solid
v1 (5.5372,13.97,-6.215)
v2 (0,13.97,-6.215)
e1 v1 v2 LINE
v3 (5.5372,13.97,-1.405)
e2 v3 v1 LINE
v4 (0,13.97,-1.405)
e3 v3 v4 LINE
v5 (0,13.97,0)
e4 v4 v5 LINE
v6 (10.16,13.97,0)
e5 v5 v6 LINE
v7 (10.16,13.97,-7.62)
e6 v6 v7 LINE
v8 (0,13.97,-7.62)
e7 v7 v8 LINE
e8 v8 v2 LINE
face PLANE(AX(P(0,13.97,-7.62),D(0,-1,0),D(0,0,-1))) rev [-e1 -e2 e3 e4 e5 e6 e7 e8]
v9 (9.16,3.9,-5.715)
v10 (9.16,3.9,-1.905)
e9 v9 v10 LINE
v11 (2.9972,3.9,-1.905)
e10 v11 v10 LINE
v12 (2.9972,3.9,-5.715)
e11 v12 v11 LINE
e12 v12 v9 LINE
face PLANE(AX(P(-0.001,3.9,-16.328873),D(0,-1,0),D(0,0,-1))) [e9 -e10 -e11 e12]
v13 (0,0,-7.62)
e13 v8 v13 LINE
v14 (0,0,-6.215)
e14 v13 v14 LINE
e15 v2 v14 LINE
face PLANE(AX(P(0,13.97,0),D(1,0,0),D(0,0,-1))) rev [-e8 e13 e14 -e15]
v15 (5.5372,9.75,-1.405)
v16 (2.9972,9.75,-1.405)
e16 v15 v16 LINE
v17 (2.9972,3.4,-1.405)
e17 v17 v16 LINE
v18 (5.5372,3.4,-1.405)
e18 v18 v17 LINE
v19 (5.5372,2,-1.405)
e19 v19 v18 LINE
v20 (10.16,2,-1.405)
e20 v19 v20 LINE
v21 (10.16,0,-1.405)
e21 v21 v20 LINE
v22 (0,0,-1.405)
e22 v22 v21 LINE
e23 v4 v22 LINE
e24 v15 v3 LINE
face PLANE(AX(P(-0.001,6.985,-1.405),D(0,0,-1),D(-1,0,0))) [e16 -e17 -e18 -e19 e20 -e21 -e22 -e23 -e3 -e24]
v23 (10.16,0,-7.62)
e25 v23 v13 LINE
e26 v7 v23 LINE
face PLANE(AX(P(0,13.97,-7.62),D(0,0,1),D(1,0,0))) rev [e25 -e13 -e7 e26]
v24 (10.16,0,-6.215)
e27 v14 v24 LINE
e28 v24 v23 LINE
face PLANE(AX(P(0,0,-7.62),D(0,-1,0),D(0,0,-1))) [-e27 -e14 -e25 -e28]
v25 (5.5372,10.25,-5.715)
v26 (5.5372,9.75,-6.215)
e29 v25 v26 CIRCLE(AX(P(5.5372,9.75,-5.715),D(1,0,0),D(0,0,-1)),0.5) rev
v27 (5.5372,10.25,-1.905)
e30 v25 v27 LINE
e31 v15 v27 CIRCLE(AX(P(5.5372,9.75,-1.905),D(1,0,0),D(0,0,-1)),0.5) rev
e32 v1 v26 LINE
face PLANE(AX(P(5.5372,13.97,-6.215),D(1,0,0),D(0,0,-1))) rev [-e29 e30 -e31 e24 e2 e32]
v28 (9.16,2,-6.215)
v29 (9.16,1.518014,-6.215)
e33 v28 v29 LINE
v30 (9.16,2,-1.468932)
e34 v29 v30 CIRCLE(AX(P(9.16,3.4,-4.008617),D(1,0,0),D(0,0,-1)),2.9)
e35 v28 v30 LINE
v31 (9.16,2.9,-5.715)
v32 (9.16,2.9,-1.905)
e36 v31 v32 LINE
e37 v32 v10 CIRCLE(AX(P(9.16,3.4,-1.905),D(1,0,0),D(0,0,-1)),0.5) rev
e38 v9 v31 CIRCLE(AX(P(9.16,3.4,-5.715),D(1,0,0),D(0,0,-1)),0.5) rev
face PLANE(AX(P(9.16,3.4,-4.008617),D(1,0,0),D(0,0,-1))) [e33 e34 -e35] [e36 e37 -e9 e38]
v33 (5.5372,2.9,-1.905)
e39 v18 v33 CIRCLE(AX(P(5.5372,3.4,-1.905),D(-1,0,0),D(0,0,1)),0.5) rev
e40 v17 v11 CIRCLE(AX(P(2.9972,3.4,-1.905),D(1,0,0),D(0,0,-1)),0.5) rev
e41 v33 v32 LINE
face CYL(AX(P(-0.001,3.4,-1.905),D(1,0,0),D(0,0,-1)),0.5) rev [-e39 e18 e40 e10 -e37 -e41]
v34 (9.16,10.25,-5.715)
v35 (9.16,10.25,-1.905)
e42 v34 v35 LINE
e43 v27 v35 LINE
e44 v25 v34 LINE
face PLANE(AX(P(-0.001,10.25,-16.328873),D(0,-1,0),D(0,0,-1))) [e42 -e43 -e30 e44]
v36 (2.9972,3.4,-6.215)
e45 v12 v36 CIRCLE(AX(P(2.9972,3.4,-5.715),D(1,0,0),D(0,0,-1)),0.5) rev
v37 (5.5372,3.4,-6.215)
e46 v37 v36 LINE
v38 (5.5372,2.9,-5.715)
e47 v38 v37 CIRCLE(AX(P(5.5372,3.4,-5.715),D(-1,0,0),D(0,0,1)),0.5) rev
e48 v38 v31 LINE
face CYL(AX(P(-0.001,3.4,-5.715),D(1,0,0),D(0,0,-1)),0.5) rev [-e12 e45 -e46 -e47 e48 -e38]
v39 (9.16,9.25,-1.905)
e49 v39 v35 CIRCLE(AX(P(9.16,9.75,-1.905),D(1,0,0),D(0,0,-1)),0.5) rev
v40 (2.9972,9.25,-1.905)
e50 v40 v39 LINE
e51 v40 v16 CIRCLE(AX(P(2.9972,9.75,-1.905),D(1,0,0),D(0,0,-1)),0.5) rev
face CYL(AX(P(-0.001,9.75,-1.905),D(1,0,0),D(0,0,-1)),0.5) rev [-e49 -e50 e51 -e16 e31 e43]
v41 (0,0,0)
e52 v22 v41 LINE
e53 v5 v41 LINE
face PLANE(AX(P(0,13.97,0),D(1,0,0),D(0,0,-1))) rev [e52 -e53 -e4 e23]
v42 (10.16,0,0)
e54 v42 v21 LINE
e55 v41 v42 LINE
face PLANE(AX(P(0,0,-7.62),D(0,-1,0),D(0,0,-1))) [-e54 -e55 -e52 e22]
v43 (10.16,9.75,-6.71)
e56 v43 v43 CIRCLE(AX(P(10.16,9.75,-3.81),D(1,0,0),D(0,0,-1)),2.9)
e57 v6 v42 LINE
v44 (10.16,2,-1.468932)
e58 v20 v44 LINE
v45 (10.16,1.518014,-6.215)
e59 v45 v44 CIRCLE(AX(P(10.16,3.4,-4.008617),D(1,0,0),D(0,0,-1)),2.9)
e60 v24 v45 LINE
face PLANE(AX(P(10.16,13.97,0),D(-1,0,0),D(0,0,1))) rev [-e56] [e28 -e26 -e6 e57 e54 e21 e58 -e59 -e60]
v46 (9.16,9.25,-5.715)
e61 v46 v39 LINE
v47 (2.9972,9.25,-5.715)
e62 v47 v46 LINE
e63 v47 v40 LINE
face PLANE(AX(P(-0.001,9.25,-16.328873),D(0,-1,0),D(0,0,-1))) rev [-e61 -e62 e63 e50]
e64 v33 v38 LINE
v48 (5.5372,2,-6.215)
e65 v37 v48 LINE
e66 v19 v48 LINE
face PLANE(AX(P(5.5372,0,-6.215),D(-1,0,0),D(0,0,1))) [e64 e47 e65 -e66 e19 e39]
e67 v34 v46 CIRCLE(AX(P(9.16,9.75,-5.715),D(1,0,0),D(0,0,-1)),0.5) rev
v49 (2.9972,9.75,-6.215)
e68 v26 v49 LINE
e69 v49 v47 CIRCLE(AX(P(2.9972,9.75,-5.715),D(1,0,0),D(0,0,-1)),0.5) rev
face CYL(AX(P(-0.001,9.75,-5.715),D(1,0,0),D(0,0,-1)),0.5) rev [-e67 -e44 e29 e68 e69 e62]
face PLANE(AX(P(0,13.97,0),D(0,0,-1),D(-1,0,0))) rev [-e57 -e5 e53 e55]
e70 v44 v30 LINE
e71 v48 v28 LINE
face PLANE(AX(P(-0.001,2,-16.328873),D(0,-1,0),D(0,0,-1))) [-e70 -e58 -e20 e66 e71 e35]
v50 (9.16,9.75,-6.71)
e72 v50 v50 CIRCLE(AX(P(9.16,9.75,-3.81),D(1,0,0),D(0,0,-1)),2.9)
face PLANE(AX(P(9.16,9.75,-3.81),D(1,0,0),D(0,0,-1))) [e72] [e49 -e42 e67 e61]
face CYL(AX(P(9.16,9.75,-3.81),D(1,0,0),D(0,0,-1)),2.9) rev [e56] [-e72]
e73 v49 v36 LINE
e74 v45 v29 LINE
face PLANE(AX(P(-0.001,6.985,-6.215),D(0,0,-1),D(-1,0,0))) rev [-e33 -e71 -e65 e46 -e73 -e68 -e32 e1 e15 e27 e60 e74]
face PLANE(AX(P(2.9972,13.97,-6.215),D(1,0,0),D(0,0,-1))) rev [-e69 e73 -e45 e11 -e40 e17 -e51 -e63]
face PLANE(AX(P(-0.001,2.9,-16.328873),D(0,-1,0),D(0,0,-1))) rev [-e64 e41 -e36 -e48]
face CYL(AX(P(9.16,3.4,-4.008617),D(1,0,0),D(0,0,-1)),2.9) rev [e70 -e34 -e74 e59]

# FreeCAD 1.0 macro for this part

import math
import FreeCAD as App
import Part
import Sketcher
Q = App.Units.Quantity


def add_polygon(sketch, points):
    """Adds a closed chain of lines whose ends are joined by coincident constraints."""
    first, n = sketch.GeometryCount, len(points)
    for a, b in zip(points, points[1:] + points[:1]):
        sketch.addGeometry(Part.LineSegment(App.Vector(*a, 0), App.Vector(*b, 0)), False)
    for i in range(n):
        sketch.addConstraint(Sketcher.Constraint("Coincident", first + i, 2, first + (i + 1) % n, 1))

doc = App.newDocument("Part")
body = doc.addObject("PartDesign::Body", "Body")

sketch1 = body.newObject("Sketcher::SketchObject", "Sketch")
sketch1.AttachmentSupport = (doc.getObject("XZ_Plane"), [""])
sketch1.MapMode = "FlatFace"
add_polygon(sketch1, [(0, -8), (0, 0), (10, 0), (10, -8)])
sketch1.addConstraint([
    Sketcher.Constraint("Vertical", 0),
    Sketcher.Constraint("Horizontal", 1),
    Sketcher.Constraint("Vertical", 2),
    Sketcher.Constraint("Horizontal", 3),
    Sketcher.Constraint("Coincident", 0, 2, -1, 1),
    Sketcher.Constraint("DistanceX", 1, 1, 1, 2, Q("0.4 in")),
    Sketcher.Constraint("DistanceY", 0, 1, 0, 2, Q("0.3 in")),
])
pad1 = body.newObject("PartDesign::Pad", "Pad")
pad1.Profile = sketch1
pad1.Length = Q("0.55 in")
pad1.Reversed = True

sketch2 = body.newObject("Sketcher::SketchObject", "Sketch001")
sketch2.AttachmentSupport = (doc.getObject("YZ_Plane"), [""])
sketch2.MapMode = "FlatFace"
sketch2.AttachmentOffset = App.Placement(App.Vector(0, 0, 0.4 * 25.4), App.Rotation())
sketch2.addGeometry([
    Part.Circle(App.Vector(3.4, -4, 0), App.Vector(0, 0, 1), 2.9),
    Part.Circle(App.Vector(9.8, -3.8, 0), App.Vector(0, 0, 1), 2.9),
], False)
sketch2.addConstraint([
    Sketcher.Constraint("Equal", 0, 1),
    Sketcher.Constraint("Diameter", 0, Q("5.8 mm")),
    Sketcher.Constraint("DistanceY", 1, 3, -1, 1, Q("0.15 in")),
    Sketcher.Constraint("DistanceX", 0, 3, 1, 3, Q("0.25 in")),
    Sketcher.Constraint("DistanceX", -1, 1, 0, 3, Q("3.4 mm")),
    Sketcher.Constraint("DistanceY", 0, 3, -1, 1, Q("4.008617 mm")),
])
pocket1 = body.newObject("PartDesign::Pocket", "Pocket")
pocket1.Profile = sketch2
pocket1.Length = 1

sketch3 = body.newObject("Sketcher::SketchObject", "Sketch002")
sketch3.AttachmentSupport = (doc.getObject("YZ_Plane"), [""])
sketch3.MapMode = "FlatFace"
sketch3.AttachmentOffset = App.Placement(App.Vector(0, 0, 0.4 * 25.4), App.Rotation())
sketch3.addGeometry([
    Part.LineSegment(App.Vector(3.9, -5.7, 0), App.Vector(3.9, -1.9, 0)),
    Part.ArcOfCircle(Part.Circle(App.Vector(3.4, -1.9, 0), App.Vector(0, 0, 1), 0.5), math.radians(0), math.radians(180)),
    Part.LineSegment(App.Vector(2.9, -1.9, 0), App.Vector(2.9, -5.7, 0)),
    Part.ArcOfCircle(Part.Circle(App.Vector(3.4, -5.7, 0), App.Vector(0, 0, 1), 0.5), math.radians(180), math.radians(360)),
], False)
sketch3.addConstraint([
    Sketcher.Constraint("Tangent", 0, 2, 1, 1),
    Sketcher.Constraint("Tangent", 1, 2, 2, 1),
    Sketcher.Constraint("Tangent", 2, 2, 3, 1),
    Sketcher.Constraint("Tangent", 3, 2, 0, 1),
    Sketcher.Constraint("Vertical", 0),
    Sketcher.Constraint("Vertical", 2),
    Sketcher.Constraint("DistanceY", 0, 1, 0, 2, Q("0.15 in")),
    Sketcher.Constraint("Radius", 1, Q("0.5 mm")),
    Sketcher.Constraint("DistanceY", 1, 3, -1, 1, Q("0.075 in")),
    Sketcher.Constraint("DistanceX", -1, 1, 1, 3, Q("3.4 mm")),
])
pocket2 = body.newObject("PartDesign::Pocket", "Pocket001")
pocket2.Profile = sketch3
pocket2.Length = Q("0.4 in")

sketch4 = body.newObject("Sketcher::SketchObject", "Sketch003")
sketch4.AttachmentSupport = (doc.getObject("YZ_Plane"), [""])
sketch4.MapMode = "FlatFace"
sketch4.AttachmentOffset = App.Placement(App.Vector(0, 0, 0.4 * 25.4), App.Rotation())
sketch4.addGeometry([
    Part.LineSegment(App.Vector(10.2, -5.7, 0), App.Vector(10.2, -1.9, 0)),
    Part.ArcOfCircle(Part.Circle(App.Vector(9.8, -1.9, 0), App.Vector(0, 0, 1), 0.5), math.radians(0), math.radians(180)),
    Part.LineSegment(App.Vector(9.2, -1.9, 0), App.Vector(9.2, -5.7, 0)),
    Part.ArcOfCircle(Part.Circle(App.Vector(9.8, -5.7, 0), App.Vector(0, 0, 1), 0.5), math.radians(180), math.radians(360)),
], False)
sketch4.addConstraint([
    Sketcher.Constraint("Tangent", 0, 2, 1, 1),
    Sketcher.Constraint("Tangent", 1, 2, 2, 1),
    Sketcher.Constraint("Tangent", 2, 2, 3, 1),
    Sketcher.Constraint("Tangent", 3, 2, 0, 1),
    Sketcher.Constraint("Vertical", 0),
    Sketcher.Constraint("Vertical", 2),
    Sketcher.Constraint("DistanceY", 0, 1, 0, 2, Q("0.15 in")),
    Sketcher.Constraint("Radius", 1, Q("0.5 mm")),
    Sketcher.Constraint("DistanceY", 1, 3, -1, 1, Q("0.075 in")),
    Sketcher.Constraint("DistanceX", -1, 1, 1, 3, Q("9.75 mm")),
])
pocket3 = body.newObject("PartDesign::Pocket", "Pocket002")
pocket3.Profile = sketch4
pocket3.Length = Q("0.4 in")

sketch5 = body.newObject("Sketcher::SketchObject", "Sketch004")
sketch5.AttachmentSupport = (doc.getObject("YZ_Plane"), [""])
sketch5.MapMode = "FlatFace"
sketch5.AttachmentOffset = App.Placement(App.Vector(0, 0, 0.4 * 25.4), App.Rotation())
add_polygon(sketch5, [(2, -1.4), (0, -1.4), (0, -6.2), (2, -6.2)])
sketch5.addConstraint([
    Sketcher.Constraint("Horizontal", 0),
    Sketcher.Constraint("Vertical", 1),
    Sketcher.Constraint("Horizontal", 2),
    Sketcher.Constraint("Vertical", 3),
    Sketcher.Constraint("PointOnObject", 0, 2, -2),
    Sketcher.Constraint("DistanceX", 0, 2, 0, 1, Q("2 mm")),
    Sketcher.Constraint("DistanceY", 1, 2, 1, 1, Q("4.81 mm")),
    Sketcher.Constraint("DistanceY", 0, 2, -1, 1, Q("1.405 mm")),
])
pocket4 = body.newObject("PartDesign::Pocket", "Pocket003")
pocket4.Profile = sketch5
pocket4.Length = Q("0.4 in")

sketch6 = body.newObject("Sketcher::SketchObject", "Sketch005")
sketch6.AttachmentSupport = (doc.getObject("YZ_Plane"), [""])
sketch6.MapMode = "FlatFace"
add_polygon(sketch6, [(14, -6.2), (9.8, -6.2), (9.8, -1.4), (14, -1.4)])
sketch6.addConstraint([
    Sketcher.Constraint("Horizontal", 0),
    Sketcher.Constraint("Vertical", 1),
    Sketcher.Constraint("Horizontal", 2),
    Sketcher.Constraint("Vertical", 3),
    Sketcher.Constraint("DistanceX", -1, 1, 2, 2, Q("0.55 in")),
    Sketcher.Constraint("DistanceX", 0, 2, 0, 1, Q("4.22 mm")),
    Sketcher.Constraint("DistanceY", 1, 1, 1, 2, Q("4.81 mm")),
    Sketcher.Constraint("DistanceY", 0, 2, -1, 1, Q("6.215 mm")),
])
pocket5 = body.newObject("PartDesign::Pocket", "Pocket004")
pocket5.Profile = sketch6
pocket5.Length = Q("0.218 in")
pocket5.Reversed = True

sketch7 = body.newObject("Sketcher::SketchObject", "Sketch006")
sketch7.AttachmentSupport = (doc.getObject("YZ_Plane"), [""])
sketch7.MapMode = "FlatFace"
add_polygon(sketch7, [(14, -6.2), (3.4, -6.2), (3.4, -1.4), (14, -1.4)])
sketch7.addConstraint([
    Sketcher.Constraint("Horizontal", 0),
    Sketcher.Constraint("Vertical", 1),
    Sketcher.Constraint("Horizontal", 2),
    Sketcher.Constraint("Vertical", 3),
    Sketcher.Constraint("DistanceX", -1, 1, 2, 2, Q("0.55 in")),
    Sketcher.Constraint("DistanceX", 0, 2, 0, 1, Q("10.57 mm")),
    Sketcher.Constraint("DistanceY", 1, 1, 1, 2, Q("4.81 mm")),
    Sketcher.Constraint("DistanceY", 0, 2, -1, 1, Q("6.215 mm")),
])
pocket6 = body.newObject("PartDesign::Pocket", "Pocket005")
pocket6.Profile = sketch7
pocket6.Length = Q("0.118 in")
pocket6.Reversed = True

sketch8 = body.newObject("Sketcher::SketchObject", "Sketch007")
sketch8.AttachmentSupport = (doc.getObject("YZ_Plane"), [""])
sketch8.MapMode = "FlatFace"
add_polygon(sketch8, [(3.4, -6.2), (0, -6.2), (0, -1.4), (3.4, -1.4)])
sketch8.addConstraint([
    Sketcher.Constraint("Horizontal", 0),
    Sketcher.Constraint("Vertical", 1),
    Sketcher.Constraint("Horizontal", 2),
    Sketcher.Constraint("Vertical", 3),
    Sketcher.Constraint("PointOnObject", 0, 2, -2),
    Sketcher.Constraint("DistanceX", 0, 2, 0, 1, Q("3.4 mm")),
    Sketcher.Constraint("DistanceY", 1, 1, 1, 2, Q("4.81 mm")),
    Sketcher.Constraint("DistanceY", 0, 2, -1, 1, Q("6.215 mm")),
])
pocket7 = body.newObject("PartDesign::Pocket", "Pocket006")
pocket7.Profile = sketch8
pocket7.Length = Q("0.218 in")
pocket7.Reversed = True

doc.recompute()
